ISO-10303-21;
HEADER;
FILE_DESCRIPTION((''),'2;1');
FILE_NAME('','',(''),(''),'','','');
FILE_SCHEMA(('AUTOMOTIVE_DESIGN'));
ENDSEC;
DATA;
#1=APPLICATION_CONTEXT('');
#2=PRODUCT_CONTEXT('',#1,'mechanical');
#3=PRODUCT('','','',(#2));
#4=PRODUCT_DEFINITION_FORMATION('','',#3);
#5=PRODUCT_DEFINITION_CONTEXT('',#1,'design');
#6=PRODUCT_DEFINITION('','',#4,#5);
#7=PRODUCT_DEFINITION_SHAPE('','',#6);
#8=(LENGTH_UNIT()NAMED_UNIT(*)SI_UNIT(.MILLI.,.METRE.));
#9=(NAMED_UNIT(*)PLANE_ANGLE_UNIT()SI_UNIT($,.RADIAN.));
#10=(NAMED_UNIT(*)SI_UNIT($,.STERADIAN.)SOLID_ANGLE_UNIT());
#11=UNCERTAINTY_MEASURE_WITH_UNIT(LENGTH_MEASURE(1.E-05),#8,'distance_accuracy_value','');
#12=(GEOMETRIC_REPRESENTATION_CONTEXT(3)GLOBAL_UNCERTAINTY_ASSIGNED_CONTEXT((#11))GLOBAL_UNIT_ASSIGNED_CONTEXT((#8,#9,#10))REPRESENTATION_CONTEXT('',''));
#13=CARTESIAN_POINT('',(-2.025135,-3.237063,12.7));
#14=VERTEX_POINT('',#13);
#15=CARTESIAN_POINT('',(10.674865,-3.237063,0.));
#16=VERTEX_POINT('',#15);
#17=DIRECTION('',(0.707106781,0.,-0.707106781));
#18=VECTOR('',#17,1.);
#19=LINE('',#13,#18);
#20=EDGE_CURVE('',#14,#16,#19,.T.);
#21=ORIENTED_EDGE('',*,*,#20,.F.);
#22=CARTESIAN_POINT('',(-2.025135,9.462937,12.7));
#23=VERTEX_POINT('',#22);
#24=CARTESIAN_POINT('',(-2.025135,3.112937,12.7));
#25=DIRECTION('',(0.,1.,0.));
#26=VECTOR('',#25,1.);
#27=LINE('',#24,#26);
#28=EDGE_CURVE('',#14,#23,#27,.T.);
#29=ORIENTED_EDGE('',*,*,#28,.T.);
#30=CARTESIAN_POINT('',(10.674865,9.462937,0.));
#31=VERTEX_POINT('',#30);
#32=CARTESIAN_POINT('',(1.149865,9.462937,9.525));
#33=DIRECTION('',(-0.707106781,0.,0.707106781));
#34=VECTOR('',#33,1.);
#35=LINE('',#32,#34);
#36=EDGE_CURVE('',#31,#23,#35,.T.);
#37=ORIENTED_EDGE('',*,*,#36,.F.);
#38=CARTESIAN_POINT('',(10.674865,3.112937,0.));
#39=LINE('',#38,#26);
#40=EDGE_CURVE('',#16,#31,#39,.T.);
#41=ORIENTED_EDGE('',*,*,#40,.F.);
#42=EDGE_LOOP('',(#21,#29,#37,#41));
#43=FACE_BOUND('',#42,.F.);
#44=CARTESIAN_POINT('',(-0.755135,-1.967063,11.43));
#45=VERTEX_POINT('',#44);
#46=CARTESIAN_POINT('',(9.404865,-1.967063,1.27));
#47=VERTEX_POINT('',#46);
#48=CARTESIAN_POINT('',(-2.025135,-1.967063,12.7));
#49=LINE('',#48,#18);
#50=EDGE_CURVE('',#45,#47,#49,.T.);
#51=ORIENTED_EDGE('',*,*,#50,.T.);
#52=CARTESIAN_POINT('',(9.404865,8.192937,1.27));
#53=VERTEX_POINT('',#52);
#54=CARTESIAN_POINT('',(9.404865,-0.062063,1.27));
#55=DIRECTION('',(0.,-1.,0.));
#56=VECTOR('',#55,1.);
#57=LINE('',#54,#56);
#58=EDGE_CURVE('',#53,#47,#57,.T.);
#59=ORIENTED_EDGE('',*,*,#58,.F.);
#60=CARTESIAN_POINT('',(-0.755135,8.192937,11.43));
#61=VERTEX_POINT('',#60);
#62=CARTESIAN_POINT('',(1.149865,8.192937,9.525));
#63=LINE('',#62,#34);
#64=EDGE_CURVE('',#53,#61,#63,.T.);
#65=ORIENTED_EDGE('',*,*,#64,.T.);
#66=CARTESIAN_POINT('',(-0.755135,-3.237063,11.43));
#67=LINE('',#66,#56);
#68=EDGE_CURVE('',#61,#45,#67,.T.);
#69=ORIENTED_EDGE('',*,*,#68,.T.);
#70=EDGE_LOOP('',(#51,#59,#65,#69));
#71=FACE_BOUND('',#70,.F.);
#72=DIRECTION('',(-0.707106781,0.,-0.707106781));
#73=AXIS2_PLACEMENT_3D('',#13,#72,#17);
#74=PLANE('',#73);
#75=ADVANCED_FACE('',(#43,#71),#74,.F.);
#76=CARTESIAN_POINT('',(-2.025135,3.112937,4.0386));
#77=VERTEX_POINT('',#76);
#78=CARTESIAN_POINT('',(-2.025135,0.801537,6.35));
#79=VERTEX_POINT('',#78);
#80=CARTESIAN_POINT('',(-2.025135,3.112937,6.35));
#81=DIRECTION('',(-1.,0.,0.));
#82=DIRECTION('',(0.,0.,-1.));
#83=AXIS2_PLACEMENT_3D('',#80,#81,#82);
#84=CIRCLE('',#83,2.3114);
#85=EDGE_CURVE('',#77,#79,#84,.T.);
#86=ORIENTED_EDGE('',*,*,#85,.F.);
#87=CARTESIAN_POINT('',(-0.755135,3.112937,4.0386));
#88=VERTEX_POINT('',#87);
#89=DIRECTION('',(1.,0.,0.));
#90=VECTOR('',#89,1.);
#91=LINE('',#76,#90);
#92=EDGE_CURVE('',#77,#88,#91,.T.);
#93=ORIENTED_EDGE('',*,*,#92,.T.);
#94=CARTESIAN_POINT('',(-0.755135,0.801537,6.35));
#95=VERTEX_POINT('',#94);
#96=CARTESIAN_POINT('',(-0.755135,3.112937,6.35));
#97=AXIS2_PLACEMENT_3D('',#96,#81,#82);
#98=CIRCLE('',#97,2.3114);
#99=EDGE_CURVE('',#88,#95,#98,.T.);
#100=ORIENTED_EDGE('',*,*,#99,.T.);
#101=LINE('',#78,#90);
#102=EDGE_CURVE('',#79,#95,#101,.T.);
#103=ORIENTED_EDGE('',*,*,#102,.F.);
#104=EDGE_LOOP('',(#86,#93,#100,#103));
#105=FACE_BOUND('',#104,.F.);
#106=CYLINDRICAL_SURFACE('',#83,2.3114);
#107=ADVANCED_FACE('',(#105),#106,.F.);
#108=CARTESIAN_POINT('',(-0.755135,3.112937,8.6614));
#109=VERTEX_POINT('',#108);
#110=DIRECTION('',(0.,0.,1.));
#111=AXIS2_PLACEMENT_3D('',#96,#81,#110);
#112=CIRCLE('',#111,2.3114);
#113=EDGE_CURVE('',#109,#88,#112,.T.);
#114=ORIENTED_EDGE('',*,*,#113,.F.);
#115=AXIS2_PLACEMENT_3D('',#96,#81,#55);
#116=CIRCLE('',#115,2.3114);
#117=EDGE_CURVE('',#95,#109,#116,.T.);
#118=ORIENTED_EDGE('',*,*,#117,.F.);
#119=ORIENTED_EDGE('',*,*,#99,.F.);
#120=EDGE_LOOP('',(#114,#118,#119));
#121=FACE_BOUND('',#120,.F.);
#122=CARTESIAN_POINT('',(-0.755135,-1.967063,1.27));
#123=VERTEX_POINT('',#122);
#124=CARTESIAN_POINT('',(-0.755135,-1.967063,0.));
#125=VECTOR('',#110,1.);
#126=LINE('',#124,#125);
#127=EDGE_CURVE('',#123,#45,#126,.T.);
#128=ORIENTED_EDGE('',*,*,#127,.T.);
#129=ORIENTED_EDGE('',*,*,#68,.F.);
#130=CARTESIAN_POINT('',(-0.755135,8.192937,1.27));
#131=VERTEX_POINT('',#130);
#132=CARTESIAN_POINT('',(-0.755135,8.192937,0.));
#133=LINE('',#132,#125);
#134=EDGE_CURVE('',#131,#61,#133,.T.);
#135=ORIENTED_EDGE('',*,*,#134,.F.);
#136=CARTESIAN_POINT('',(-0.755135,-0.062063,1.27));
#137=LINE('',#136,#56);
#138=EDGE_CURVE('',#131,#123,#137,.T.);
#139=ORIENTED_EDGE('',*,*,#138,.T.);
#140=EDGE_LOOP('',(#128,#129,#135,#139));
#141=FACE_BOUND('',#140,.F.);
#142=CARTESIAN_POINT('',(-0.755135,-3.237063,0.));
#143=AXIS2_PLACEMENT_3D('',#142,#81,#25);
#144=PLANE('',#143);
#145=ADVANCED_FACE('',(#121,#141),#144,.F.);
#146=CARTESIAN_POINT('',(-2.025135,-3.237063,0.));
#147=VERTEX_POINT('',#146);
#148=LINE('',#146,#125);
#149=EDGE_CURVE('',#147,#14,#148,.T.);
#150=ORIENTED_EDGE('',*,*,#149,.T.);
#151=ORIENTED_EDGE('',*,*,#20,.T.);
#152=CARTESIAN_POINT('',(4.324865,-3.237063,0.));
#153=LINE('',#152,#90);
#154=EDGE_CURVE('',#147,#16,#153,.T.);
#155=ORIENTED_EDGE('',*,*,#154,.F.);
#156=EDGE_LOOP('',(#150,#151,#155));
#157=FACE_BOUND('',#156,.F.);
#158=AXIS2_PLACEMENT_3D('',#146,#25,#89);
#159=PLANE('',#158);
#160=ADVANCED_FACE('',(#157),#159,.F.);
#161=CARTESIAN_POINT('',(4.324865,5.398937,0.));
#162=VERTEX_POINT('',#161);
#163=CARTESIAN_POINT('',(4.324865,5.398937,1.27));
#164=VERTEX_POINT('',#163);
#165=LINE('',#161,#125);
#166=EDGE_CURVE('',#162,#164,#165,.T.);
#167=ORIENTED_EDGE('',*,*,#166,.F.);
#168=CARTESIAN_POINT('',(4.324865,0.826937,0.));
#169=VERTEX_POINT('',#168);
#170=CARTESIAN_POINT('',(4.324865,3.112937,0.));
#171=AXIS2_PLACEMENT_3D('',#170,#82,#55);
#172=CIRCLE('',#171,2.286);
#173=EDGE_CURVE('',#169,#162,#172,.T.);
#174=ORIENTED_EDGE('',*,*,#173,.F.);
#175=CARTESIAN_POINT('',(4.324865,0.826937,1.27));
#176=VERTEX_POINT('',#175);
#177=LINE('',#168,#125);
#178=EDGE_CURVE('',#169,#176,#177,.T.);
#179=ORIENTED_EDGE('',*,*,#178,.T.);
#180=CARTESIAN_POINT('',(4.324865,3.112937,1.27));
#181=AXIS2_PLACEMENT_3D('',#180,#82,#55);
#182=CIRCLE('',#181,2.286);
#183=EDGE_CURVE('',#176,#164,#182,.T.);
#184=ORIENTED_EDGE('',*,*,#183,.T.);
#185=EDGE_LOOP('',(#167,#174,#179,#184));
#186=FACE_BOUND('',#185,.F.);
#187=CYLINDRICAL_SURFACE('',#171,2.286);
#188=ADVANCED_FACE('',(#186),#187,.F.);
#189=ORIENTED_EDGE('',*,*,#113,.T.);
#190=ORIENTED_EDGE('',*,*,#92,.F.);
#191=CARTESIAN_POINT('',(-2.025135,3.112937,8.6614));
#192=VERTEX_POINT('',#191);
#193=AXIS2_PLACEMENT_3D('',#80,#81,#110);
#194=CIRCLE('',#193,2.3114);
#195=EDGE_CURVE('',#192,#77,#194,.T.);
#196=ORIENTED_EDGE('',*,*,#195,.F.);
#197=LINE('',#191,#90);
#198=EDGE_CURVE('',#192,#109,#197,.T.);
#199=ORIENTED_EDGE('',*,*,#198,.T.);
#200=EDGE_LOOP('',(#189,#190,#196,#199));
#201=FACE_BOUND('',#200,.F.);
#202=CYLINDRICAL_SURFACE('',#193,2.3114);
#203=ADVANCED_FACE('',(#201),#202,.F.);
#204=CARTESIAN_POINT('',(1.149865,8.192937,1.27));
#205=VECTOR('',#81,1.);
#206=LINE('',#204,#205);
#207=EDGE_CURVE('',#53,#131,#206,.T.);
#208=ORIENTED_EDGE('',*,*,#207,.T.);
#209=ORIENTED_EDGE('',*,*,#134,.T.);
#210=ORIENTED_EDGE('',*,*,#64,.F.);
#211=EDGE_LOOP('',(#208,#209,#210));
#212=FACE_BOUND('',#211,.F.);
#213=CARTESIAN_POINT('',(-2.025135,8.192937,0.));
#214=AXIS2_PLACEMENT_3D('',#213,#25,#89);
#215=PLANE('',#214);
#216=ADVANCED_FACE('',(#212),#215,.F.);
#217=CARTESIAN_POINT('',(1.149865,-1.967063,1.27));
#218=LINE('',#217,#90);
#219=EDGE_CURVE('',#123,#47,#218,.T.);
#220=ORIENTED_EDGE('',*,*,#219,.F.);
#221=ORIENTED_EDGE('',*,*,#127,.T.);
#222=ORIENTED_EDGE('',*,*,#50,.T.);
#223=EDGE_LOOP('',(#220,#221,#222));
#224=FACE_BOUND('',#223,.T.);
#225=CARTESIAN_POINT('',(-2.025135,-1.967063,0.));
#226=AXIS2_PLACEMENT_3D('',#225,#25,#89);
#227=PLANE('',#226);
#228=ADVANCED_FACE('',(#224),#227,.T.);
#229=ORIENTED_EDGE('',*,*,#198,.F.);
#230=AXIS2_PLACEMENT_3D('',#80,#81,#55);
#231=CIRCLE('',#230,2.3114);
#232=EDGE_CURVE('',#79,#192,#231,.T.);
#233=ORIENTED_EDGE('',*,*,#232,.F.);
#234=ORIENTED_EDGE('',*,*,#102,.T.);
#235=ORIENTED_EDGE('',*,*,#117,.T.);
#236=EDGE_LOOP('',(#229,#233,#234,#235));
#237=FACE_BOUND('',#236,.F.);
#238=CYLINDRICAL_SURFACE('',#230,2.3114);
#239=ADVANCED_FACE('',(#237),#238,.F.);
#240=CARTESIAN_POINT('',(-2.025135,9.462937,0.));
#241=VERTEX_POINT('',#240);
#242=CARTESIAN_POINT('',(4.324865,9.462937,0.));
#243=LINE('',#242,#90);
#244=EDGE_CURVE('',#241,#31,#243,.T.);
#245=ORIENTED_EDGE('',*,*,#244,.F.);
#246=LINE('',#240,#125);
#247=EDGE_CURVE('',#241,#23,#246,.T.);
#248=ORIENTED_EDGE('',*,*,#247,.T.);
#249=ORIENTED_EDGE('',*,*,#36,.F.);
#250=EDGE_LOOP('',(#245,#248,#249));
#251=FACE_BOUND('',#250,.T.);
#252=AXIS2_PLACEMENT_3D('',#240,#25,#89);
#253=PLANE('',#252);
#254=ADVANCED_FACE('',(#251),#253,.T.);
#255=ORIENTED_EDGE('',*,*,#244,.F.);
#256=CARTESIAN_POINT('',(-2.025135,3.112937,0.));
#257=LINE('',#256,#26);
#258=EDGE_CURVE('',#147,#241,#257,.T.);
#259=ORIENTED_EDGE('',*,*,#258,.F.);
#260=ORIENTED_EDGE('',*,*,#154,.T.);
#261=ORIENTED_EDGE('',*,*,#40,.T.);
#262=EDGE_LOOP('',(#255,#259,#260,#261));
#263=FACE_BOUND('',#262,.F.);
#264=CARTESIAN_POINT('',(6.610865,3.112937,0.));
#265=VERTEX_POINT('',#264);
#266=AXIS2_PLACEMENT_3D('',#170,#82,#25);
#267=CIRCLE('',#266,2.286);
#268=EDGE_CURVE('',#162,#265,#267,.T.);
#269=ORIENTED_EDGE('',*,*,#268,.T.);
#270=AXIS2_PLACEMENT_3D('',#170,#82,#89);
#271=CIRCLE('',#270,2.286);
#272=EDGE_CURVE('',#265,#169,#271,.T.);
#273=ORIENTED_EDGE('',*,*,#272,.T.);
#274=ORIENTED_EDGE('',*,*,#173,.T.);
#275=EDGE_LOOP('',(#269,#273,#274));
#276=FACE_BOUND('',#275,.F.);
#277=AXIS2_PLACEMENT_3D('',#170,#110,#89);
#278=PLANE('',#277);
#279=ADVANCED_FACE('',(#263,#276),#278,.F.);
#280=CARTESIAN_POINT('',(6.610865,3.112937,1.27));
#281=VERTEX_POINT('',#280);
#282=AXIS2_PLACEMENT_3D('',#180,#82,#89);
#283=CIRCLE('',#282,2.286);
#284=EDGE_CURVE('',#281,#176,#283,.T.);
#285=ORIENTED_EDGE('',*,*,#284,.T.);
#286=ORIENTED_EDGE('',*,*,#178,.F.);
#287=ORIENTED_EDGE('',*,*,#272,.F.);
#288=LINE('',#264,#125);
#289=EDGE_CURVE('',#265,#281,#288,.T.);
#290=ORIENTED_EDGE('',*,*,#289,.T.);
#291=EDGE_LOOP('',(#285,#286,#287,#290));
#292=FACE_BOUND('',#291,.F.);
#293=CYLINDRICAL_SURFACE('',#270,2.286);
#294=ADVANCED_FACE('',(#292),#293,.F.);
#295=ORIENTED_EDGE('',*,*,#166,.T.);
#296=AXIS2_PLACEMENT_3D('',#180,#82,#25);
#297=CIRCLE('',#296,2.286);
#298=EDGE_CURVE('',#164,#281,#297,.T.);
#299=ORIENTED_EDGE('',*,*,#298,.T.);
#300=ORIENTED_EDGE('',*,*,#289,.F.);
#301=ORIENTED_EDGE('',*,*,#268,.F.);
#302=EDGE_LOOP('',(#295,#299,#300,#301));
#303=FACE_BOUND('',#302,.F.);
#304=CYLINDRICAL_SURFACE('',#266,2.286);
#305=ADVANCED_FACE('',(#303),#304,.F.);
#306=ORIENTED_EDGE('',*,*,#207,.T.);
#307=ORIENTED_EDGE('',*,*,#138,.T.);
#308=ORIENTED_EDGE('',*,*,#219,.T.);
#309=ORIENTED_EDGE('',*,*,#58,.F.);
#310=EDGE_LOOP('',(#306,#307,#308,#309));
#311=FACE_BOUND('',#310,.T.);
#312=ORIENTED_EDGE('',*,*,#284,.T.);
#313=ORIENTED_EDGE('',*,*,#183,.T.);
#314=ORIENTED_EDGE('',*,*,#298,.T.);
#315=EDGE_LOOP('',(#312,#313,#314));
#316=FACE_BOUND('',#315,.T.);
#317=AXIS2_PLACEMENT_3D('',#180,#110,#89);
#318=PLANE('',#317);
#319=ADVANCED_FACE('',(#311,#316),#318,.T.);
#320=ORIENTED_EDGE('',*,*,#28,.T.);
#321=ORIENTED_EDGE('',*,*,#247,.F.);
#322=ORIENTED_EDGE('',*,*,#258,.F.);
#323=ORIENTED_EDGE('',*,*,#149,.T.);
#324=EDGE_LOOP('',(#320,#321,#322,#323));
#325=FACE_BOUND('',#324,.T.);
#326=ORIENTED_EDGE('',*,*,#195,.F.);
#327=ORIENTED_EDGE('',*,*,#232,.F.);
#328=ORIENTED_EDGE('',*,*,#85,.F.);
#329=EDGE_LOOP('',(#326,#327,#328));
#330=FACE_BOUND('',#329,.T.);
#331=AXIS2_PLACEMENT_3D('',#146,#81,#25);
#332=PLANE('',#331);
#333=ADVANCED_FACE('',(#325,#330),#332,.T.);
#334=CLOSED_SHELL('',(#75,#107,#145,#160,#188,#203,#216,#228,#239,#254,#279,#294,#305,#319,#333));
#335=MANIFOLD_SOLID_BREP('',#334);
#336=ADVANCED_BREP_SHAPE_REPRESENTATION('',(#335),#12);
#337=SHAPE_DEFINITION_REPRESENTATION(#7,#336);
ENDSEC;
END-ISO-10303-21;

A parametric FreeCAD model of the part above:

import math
import FreeCAD as App
import Part
import Sketcher
from FreeCAD import Vector
Q = App.Units.Quantity


def faces_at(feature, points):
    """Names of the faces that lie closest to the given points."""
    faces = feature.Shape.Faces
    near = lambda p: min(range(len(faces)), key=lambda i: faces[i].distToShape(Part.Vertex(*p))[0])
    return sorted({f"Face{near(p) + 1}" for p in points})


def add_polygon(sketch, points):
    """Adds a closed chain of lines whose ends are joined by coincident constraints."""
    first, n = sketch.GeometryCount, len(points)
    for a, b in zip(points, points[1:] + points[:1]):
        sketch.addGeometry(Part.LineSegment(App.Vector(*a, 0), App.Vector(*b, 0)), False)
    for i in range(n):
        sketch.addConstraint(Sketcher.Constraint("Coincident", first + i, 2, first + (i + 1) % n, 1))

doc = App.newDocument("Part")
params = doc.addObject("Spreadsheet::Sheet", "Params")
for row, (alias, value) in enumerate([
    ("sketch1_width", "0.5 in"),
    ("pad1_length", "0.5 in"),
    ("sketch2_width", "0.5 in"),
    ("pocket1_length", "1 in"),
    ("thickness_wall", "0.05 in"),
    ("sketch3_radius", "0.091 in"),
    ("pocket2_length", "1 in"),
    ("sketch4_radius", "0.09 in"),
    ("pocket3_length", "1 in"),
], start=1):
    params.set(f"A{row}", alias)
    params.set(f"B{row}", "=" + value)
    params.setAlias(f"B{row}", alias)

body = doc.addObject("PartDesign::Body", "Body")

sketch1 = body.newObject("Sketcher::SketchObject", "Sketch")
sketch1.AttachmentSupport = (doc.getObject("XY_Plane"), [""])
sketch1.MapMode = "FlatFace"
add_polygon(sketch1, [(-2, 9), (-2, -3), (11, -3), (11, 9)])
sketch1.addConstraint([
    Sketcher.Constraint("Vertical", 0),
    Sketcher.Constraint("Horizontal", 1),
    Sketcher.Constraint("Vertical", 2),
    Sketcher.Constraint("Horizontal", 3),
    Sketcher.Constraint("Equal", 3, 0),
    Sketcher.Constraint("DistanceX", 1, 1, 1, 2, Q("0.5 in")),
    Sketcher.Constraint("DistanceX", 0, 2, -1, 1, 2.025135),
    Sketcher.Constraint("DistanceY", 0, 2, -1, 1, 3.237063),
])
sketch1.setExpression("Constraints[9]", "Params.sketch1_width")
pad1 = body.newObject("PartDesign::Pad", "Pad")
pad1.Profile = sketch1
pad1.setExpression("Length", "Params.pad1_length")

sketch2 = body.newObject("Sketcher::SketchObject", "Sketch001")
sketch2.AttachmentSupport = (doc.getObject("XZ_Plane"), [""])
sketch2.MapMode = "FlatFace"
sketch2.AttachmentOffset = App.Placement(Vector(0, 0, 3.237063), App.Rotation())
add_polygon(sketch2, [(11, 13), (-2, 13), (11, 0)])
sketch2.addConstraint([
    Sketcher.Constraint("Horizontal", 0),
    Sketcher.Constraint("Vertical", 2),
    Sketcher.Constraint("PointOnObject", 1, 2, -1),
    Sketcher.Constraint("Equal", 0, 2),
    Sketcher.Constraint("DistanceX", 0, 2, 0, 1, Q("0.5 in")),
    Sketcher.Constraint("DistanceX", 0, 2, -1, 1, 2.025135),
])
sketch2.setExpression("Constraints[7]", "Params.sketch2_width")
pocket1 = body.newObject("PartDesign::Pocket", "Pocket")
pocket1.Profile = sketch2
pocket1.setExpression("Length", "Params.pocket1_length")
doc.recompute()

thickness = body.newObject("PartDesign::Thickness", "Thickness")
thickness.Base = (pocket1, faces_at(pocket1, [(4.325, 3.113, 6.35)]))
thickness.setExpression("Value", "Params.thickness_wall")
thickness.Reversed = True
thickness.Join = "Arc"

sketch3 = body.newObject("Sketcher::SketchObject", "Sketch002")
sketch3.AttachmentSupport = (doc.getObject("YZ_Plane"), [""])
sketch3.MapMode = "FlatFace"
sketch3.AttachmentOffset = App.Placement(Vector(0, 0, -2.025135), App.Rotation())
sketch3.addGeometry([
    Part.ArcOfCircle(Part.Circle(Vector(3.1, 6.3, 0), Vector(0, 0, 1), 2.3), math.radians(90), math.radians(180)),
    Part.ArcOfCircle(Part.Circle(Vector(3.1, 6.3, 0), Vector(0, 0, 1), 2.3), math.radians(-90), math.radians(90)),
    Part.ArcOfCircle(Part.Circle(Vector(3.1, 6.3, 0), Vector(0, 0, 1), 2.3), math.radians(180), math.radians(270)),
], False)
sketch3.addConstraint([
    Sketcher.Constraint("Tangent", 0, 1, 1, 2),
    Sketcher.Constraint("Tangent", 1, 1, 2, 2),
    Sketcher.Constraint("Tangent", 2, 1, 0, 2),
    Sketcher.Constraint("Horizontal", 1, 3, 2, 1),
    Sketcher.Constraint("Vertical", 2, 3, 0, 1),
    Sketcher.Constraint("Vertical", 0, 1, 1, 1),
    Sketcher.Constraint("Radius", 0, Q("0.091 in")),
    Sketcher.Constraint("DistanceY", -1, 1, 0, 3, Q("0.25 in")),
    Sketcher.Constraint("DistanceX", -1, 1, 0, 3, 3.112937),
])
sketch3.setExpression("Constraints[6]", "Params.sketch3_radius")
pocket2 = body.newObject("PartDesign::Pocket", "Pocket001")
pocket2.Profile = sketch3
pocket2.setExpression("Length", "Params.pocket2_length")
pocket2.Reversed = True

sketch4 = body.newObject("Sketcher::SketchObject", "Sketch003")
sketch4.AttachmentSupport = (doc.getObject("XY_Plane"), [""])
sketch4.MapMode = "FlatFace"
sketch4.addGeometry([
    Part.ArcOfCircle(Part.Circle(Vector(4.3, 3.1, 0), Vector(0, 0, 1), 2.3), math.radians(-90), math.radians(0)),
    Part.ArcOfCircle(Part.Circle(Vector(4.3, 3.1, 0), Vector(0, 0, 1), 2.3), math.radians(90), math.radians(270)),
    Part.ArcOfCircle(Part.Circle(Vector(4.3, 3.1, 0), Vector(0, 0, 1), 2.3), math.radians(0), math.radians(90)),
], False)
sketch4.addConstraint([
    Sketcher.Constraint("Tangent", 0, 1, 1, 2),
    Sketcher.Constraint("Tangent", 1, 1, 2, 2),
    Sketcher.Constraint("Tangent", 2, 1, 0, 2),
    Sketcher.Constraint("Horizontal", 1, 3, 2, 1),
    Sketcher.Constraint("Vertical", 2, 3, 0, 1),
    Sketcher.Constraint("Vertical", 0, 1, 1, 1),
    Sketcher.Constraint("Radius", 0, Q("0.09 in")),
    Sketcher.Constraint("DistanceX", -1, 1, 0, 3, 4.324865),
    Sketcher.Constraint("DistanceY", -1, 1, 0, 3, 3.112937),
])
sketch4.setExpression("Constraints[6]", "Params.sketch4_radius")
pocket3 = body.newObject("PartDesign::Pocket", "Pocket002")
pocket3.Profile = sketch4
pocket3.setExpression("Length", "Params.pocket3_length")
pocket3.Reversed = True

doc.recompute()
